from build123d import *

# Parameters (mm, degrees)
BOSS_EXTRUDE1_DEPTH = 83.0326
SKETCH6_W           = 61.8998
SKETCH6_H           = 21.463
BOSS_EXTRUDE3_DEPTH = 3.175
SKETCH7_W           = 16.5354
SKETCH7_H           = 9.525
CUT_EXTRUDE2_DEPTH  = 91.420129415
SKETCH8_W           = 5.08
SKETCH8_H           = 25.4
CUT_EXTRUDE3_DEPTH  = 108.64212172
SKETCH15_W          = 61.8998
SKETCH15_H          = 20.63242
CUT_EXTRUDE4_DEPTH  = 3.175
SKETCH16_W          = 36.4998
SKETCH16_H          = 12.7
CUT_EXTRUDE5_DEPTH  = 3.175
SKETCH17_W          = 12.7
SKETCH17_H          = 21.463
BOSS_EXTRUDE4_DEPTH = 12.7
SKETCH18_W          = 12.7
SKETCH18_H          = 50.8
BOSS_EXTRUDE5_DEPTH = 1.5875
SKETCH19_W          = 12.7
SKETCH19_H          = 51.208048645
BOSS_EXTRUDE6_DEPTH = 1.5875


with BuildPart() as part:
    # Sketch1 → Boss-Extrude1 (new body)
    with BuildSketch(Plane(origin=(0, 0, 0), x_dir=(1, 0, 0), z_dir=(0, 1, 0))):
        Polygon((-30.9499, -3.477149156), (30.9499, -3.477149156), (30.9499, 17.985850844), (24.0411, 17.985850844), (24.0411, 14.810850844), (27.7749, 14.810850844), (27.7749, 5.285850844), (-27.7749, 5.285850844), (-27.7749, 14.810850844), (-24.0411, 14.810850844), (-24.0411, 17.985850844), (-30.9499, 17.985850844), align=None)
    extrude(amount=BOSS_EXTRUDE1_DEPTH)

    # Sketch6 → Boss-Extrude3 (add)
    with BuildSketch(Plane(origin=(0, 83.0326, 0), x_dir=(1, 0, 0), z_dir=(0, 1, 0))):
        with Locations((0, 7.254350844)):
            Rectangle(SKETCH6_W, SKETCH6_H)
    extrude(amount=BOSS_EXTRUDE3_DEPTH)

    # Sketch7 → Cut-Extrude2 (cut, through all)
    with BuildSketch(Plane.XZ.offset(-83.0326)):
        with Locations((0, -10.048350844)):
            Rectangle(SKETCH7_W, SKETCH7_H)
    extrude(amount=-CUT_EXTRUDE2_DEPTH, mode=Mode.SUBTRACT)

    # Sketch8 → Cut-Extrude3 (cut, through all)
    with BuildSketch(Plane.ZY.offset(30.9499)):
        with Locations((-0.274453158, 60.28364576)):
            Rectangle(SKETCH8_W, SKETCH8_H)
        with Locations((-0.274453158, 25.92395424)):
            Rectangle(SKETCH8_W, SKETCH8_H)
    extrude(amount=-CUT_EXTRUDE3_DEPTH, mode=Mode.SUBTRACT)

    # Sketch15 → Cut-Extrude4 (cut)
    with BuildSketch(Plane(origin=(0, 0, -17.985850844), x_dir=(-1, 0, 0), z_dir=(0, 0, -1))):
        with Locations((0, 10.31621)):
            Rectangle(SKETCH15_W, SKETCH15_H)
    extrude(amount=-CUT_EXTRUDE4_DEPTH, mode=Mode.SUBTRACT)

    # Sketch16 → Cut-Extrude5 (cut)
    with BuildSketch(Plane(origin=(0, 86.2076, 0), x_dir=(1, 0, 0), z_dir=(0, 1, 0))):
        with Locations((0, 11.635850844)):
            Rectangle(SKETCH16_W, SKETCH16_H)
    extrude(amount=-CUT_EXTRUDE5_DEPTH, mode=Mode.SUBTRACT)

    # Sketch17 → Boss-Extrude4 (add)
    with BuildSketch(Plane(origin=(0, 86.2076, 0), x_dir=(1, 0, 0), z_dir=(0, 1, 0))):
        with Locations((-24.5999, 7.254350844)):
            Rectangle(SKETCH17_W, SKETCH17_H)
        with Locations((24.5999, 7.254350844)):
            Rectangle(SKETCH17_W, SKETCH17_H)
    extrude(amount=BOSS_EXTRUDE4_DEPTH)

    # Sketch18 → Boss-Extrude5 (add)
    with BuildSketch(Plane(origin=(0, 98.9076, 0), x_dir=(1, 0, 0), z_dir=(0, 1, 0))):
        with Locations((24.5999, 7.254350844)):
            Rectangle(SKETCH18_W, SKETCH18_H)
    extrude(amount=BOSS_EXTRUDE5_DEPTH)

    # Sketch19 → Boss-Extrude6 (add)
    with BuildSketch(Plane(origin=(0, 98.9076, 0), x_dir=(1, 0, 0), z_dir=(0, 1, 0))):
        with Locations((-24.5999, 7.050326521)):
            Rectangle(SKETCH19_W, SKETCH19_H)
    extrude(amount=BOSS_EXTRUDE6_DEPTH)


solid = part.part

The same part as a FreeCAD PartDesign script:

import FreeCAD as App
import Part
import Sketcher
Q = App.Units.Quantity


def add_polygon(sketch, points):
    """Adds a closed chain of lines whose ends are joined by coincident constraints."""
    first, n = sketch.GeometryCount, len(points)
    for a, b in zip(points, points[1:] + points[:1]):
        sketch.addGeometry(Part.LineSegment(App.Vector(*a, 0), App.Vector(*b, 0)), False)
    for i in range(n):
        sketch.addConstraint(Sketcher.Constraint("Coincident", first + i, 2, first + (i + 1) % n, 1))

doc = App.newDocument("Part")
params = doc.addObject("Spreadsheet::Sheet", "Params")
for row, (alias, value) in enumerate([
    ("sketch1_width", "2.437 in"),
    ("sketch1_width2", "0.272 in"),
    ("sketch1_width3", "0.147 in"),
    ("sketch1_height", "0.845 in"),
    ("sketch1_height2", "0.125 in"),
    ("pad1_length", "3.269 in"),
    ("sketch2_width", "2.437 in"),
    ("sketch2_height", "0.845 in"),
    ("pad2_length", "0.125 in"),
    ("sketch3_width", "0.651 in"),
    ("sketch3_height", "0.375 in"),
    ("sketch4_width", "1 in"),
    ("sketch4_height", "0.2 in"),
    ("sketch5_width", "2.437 in"),
    ("pocket3_length", "0.125 in"),
    ("sketch6_height", "0.5 in"),
    ("sketch6_width", "1.437 in"),
    ("pocket4_length", "0.125 in"),
    ("sketch7_width", "0.5 in"),
    ("sketch7_height", "0.845 in"),
    ("pad3_length", "0.5 in"),
    ("sketch8_height", "2 in"),
    ("sketch8_width", "0.5 in"),
    ("pad4_length", "0.0625 in"),
    ("sketch9_width", "0.5 in"),
    ("pad5_length", "0.0625 in"),
], start=1):
    params.set(f"A{row}", alias)
    params.set(f"B{row}", "=" + value)
    params.setAlias(f"B{row}", alias)

body = doc.addObject("PartDesign::Body", "Body")

sketch1 = doc.addObject("Sketcher::SketchObject", "Sketch")
body.addObject(sketch1)
sketch1.AttachmentSupport = (doc.XZ_Plane, [""])
sketch1.MapMode = "FlatFace"
add_polygon(sketch1, [(-30.9, 3.5), (30.9, 3.5), (30.9, -18), (24, -18), (24, -14.8), (27.8, -14.8), (27.8, -5.3), (-27.8, -5.3), (-27.8, -14.8), (-24, -14.8), (-24, -18), (-30.9, -18)])
sketch1.addConstraint([
    Sketcher.Constraint("Horizontal", 0),
    Sketcher.Constraint("Vertical", 1),
    Sketcher.Constraint("Horizontal", 2),
    Sketcher.Constraint("Vertical", 3),
    Sketcher.Constraint("Horizontal", 4),
    Sketcher.Constraint("Vertical", 5),
    Sketcher.Constraint("Horizontal", 6),
    Sketcher.Constraint("Vertical", 7),
    Sketcher.Constraint("Horizontal", 8),
    Sketcher.Constraint("Vertical", 9),
    Sketcher.Constraint("Horizontal", 10),
    Sketcher.Constraint("Vertical", 11),
    Sketcher.Constraint("Symmetric", 4, 2, 7, 2, -2),
    Sketcher.Constraint("Symmetric", 2, 2, 9, 2, -2),
    Sketcher.Constraint("Equal", 2, 10),
    Sketcher.Constraint("DistanceY", 1, 2, 5, 2, Q("0.5 in")),
    Sketcher.Constraint("DistanceX", 0, 1, 0, 2, Q("2.437 in")),
    Sketcher.Constraint("DistanceX", 2, 2, 2, 1, Q("0.272 in")),
    Sketcher.Constraint("DistanceX", 4, 1, 4, 2, Q("0.147 in")),
    Sketcher.Constraint("DistanceY", 1, 2, 1, 1, Q("0.845 in")),
    Sketcher.Constraint("DistanceY", 3, 1, 3, 2, Q("0.125 in")),
    Sketcher.Constraint("DistanceY", -1, 1, 0, 2, Q("3.477149 mm")),
])
sketch1.setExpression("Constraints[28]", "Params.sketch1_width")
sketch1.setExpression("Constraints[29]", "Params.sketch1_width2")
sketch1.setExpression("Constraints[30]", "Params.sketch1_width3")
sketch1.setExpression("Constraints[31]", "Params.sketch1_height")
sketch1.setExpression("Constraints[32]", "Params.sketch1_height2")
pad1 = doc.addObject("PartDesign::Pad", "Pad")
body.addObject(pad1)
pad1.Profile = sketch1
pad1.setExpression("Length", "Params.pad1_length")
pad1.Reversed = True

sketch2 = doc.addObject("Sketcher::SketchObject", "Sketch001")
body.addObject(sketch2)
sketch2.AttachmentSupport = (doc.XZ_Plane, [""])
sketch2.MapMode = "FlatFace"
sketch2.AttachmentOffset = App.Placement(App.Vector(0, 0, -3.269 * 25.4), App.Rotation())
add_polygon(sketch2, [(-31, -18), (-31, 3), (31, 3), (31, -18)])
sketch2.addConstraint([
    Sketcher.Constraint("Vertical", 0),
    Sketcher.Constraint("Horizontal", 1),
    Sketcher.Constraint("Vertical", 2),
    Sketcher.Constraint("Horizontal", 3),
    Sketcher.Constraint("DistanceX", 1, 1, 1, 2, Q("2.437 in")),
    Sketcher.Constraint("DistanceY", 0, 1, 0, 2, Q("0.845 in")),
    Sketcher.Constraint("DistanceX", 0, 2, -1, 1, Q("1.2185 in")),
    Sketcher.Constraint("DistanceY", -1, 1, 0, 2, Q("3.477149 mm")),
])
sketch2.setExpression("Constraints[8]", "Params.sketch2_width")
sketch2.setExpression("Constraints[9]", "Params.sketch2_height")
pad2 = doc.addObject("PartDesign::Pad", "Pad001")
body.addObject(pad2)
pad2.Profile = sketch2
pad2.setExpression("Length", "Params.pad2_length")
pad2.Reversed = True

sketch3 = doc.addObject("Sketcher::SketchObject", "Sketch002")
body.addObject(sketch3)
sketch3.AttachmentSupport = (doc.XZ_Plane, [""])
sketch3.MapMode = "FlatFace"
sketch3.AttachmentOffset = App.Placement(App.Vector(0, 0, -3.269 * 25.4), App.Rotation())
add_polygon(sketch3, [(-8, -5), (-8, -15), (8, -15), (8, -5)])
sketch3.addConstraint([
    Sketcher.Constraint("Vertical", 0),
    Sketcher.Constraint("Horizontal", 1),
    Sketcher.Constraint("Vertical", 2),
    Sketcher.Constraint("Horizontal", 3),
    Sketcher.Constraint("DistanceX", 1, 1, 1, 2, Q("0.651 in")),
    Sketcher.Constraint("DistanceY", 0, 2, 0, 1, Q("0.375 in")),
    Sketcher.Constraint("DistanceX", 0, 2, -1, 1, Q("0.3255 in")),
    Sketcher.Constraint("DistanceY", 0, 2, -1, 1, Q("14.810851 mm")),
])
sketch3.setExpression("Constraints[8]", "Params.sketch3_width")
sketch3.setExpression("Constraints[9]", "Params.sketch3_height")
pocket1 = doc.addObject("PartDesign::Pocket", "Pocket")
body.addObject(pocket1)
pocket1.Profile = sketch3
pocket1.Type = "ThroughAll"

sketch4 = doc.addObject("Sketcher::SketchObject", "Sketch003")
body.addObject(sketch4)
sketch4.AttachmentSupport = (doc.YZ_Plane, [""])
sketch4.MapMode = "FlatFace"
sketch4.AttachmentOffset = App.Placement(App.Vector(0, 0, -1.2185 * 25.4), App.Rotation())
add_polygon(sketch4, [(73, -3), (48, -3), (48, 2), (73, 2)])
add_polygon(sketch4, [(39, -3), (13, -3), (13, 2), (39, 2)])
sketch4.addConstraint([
    Sketcher.Constraint("Horizontal", 0),
    Sketcher.Constraint("Vertical", 1),
    Sketcher.Constraint("Horizontal", 2),
    Sketcher.Constraint("Vertical", 3),
    Sketcher.Constraint("Horizontal", 4),
    Sketcher.Constraint("Vertical", 5),
    Sketcher.Constraint("Horizontal", 6),
    Sketcher.Constraint("Vertical", 7),
    Sketcher.Constraint("Horizontal", 3, 2, 4, 2),
    Sketcher.Constraint("Horizontal", 2, 2, 5, 2),
    Sketcher.Constraint("Equal", 2, 4),
    Sketcher.Constraint("DistanceX", 0, 2, 0, 1, Q("1 in")),
    Sketcher.Constraint("DistanceY", 1, 1, 1, 2, Q("0.2 in")),
    Sketcher.Constraint("DistanceX", 4, 2, 0, 2, Q("34.359692 mm")),
    Sketcher.Constraint("DistanceX", -1, 1, 0, 2, Q("47.583646 mm")),
    Sketcher.Constraint("DistanceY", 0, 2, -1, 1, Q("2.814453 mm")),
])
sketch4.setExpression("Constraints[19]", "Params.sketch4_width")
sketch4.setExpression("Constraints[20]", "Params.sketch4_height")
pocket2 = doc.addObject("PartDesign::Pocket", "Pocket001")
body.addObject(pocket2)
pocket2.Profile = sketch4
pocket2.Type = "ThroughAll"
pocket2.Reversed = True

sketch5 = doc.addObject("Sketcher::SketchObject", "Sketch004")
body.addObject(sketch5)
sketch5.AttachmentSupport = (doc.XY_Plane, [""])
sketch5.MapMode = "FlatFace"
sketch5.AttachmentOffset = App.Placement(App.Vector(0, 0, -17.985851), App.Rotation())
add_polygon(sketch5, [(31, 21), (31, 0), (-31, 0), (-31, 21)])
sketch5.addConstraint([
    Sketcher.Constraint("Vertical", 0),
    Sketcher.Constraint("Horizontal", 1),
    Sketcher.Constraint("Vertical", 2),
    Sketcher.Constraint("Horizontal", 3),
    Sketcher.Constraint("Symmetric", 0, 2, 1, 2, -1, 1),
    Sketcher.Constraint("DistanceX", 1, 2, 1, 1, Q("2.437 in")),
    Sketcher.Constraint("DistanceY", 0, 2, 0, 1, Q("0.8123 in")),
])
sketch5.setExpression("Constraints[9]", "Params.sketch5_width")
pocket3 = doc.addObject("PartDesign::Pocket", "Pocket002")
body.addObject(pocket3)
pocket3.Profile = sketch5
pocket3.setExpression("Length", "Params.pocket3_length")
pocket3.Reversed = True

sketch6 = doc.addObject("Sketcher::SketchObject", "Sketch005")
body.addObject(sketch6)
sketch6.AttachmentSupport = (doc.XZ_Plane, [""])
sketch6.MapMode = "FlatFace"
sketch6.AttachmentOffset = App.Placement(App.Vector(0, 0, -3.394 * 25.4), App.Rotation())
add_polygon(sketch6, [(-18, -18), (-18, -5), (18, -5), (18, -18)])
sketch6.addConstraint([
    Sketcher.Constraint("Vertical", 0),
    Sketcher.Constraint("Horizontal", 1),
    Sketcher.Constraint("Vertical", 2),
    Sketcher.Constraint("Horizontal", 3),
    Sketcher.Constraint("DistanceY", 0, 1, 0, 2, Q("0.5 in")),
    Sketcher.Constraint("DistanceX", 1, 1, 1, 2, Q("1.437 in")),
    Sketcher.Constraint("DistanceX", 0, 2, -1, 1, Q("0.7185 in")),
    Sketcher.Constraint("DistanceY", 0, 2, -1, 1, Q("5.285851 mm")),
])
sketch6.setExpression("Constraints[8]", "Params.sketch6_height")
sketch6.setExpression("Constraints[9]", "Params.sketch6_width")
pocket4 = doc.addObject("PartDesign::Pocket", "Pocket003")
body.addObject(pocket4)
pocket4.Profile = sketch6
pocket4.setExpression("Length", "Params.pocket4_length")
pocket4.Reversed = True

sketch7 = doc.addObject("Sketcher::SketchObject", "Sketch006")
body.addObject(sketch7)
sketch7.AttachmentSupport = (doc.XZ_Plane, [""])
sketch7.MapMode = "FlatFace"
sketch7.AttachmentOffset = App.Placement(App.Vector(0, 0, -3.394 * 25.4), App.Rotation())
add_polygon(sketch7, [(-31, -18), (-31, 3), (-18, 3), (-18, -18)])
add_polygon(sketch7, [(18, -18), (18, 3), (31, 3), (31, -18)])
sketch7.addConstraint([
    Sketcher.Constraint("Vertical", 0),
    Sketcher.Constraint("Horizontal", 1),
    Sketcher.Constraint("Vertical", 2),
    Sketcher.Constraint("Horizontal", 3),
    Sketcher.Constraint("Vertical", 4),
    Sketcher.Constraint("Horizontal", 5),
    Sketcher.Constraint("Vertical", 6),
    Sketcher.Constraint("Horizontal", 7),
    Sketcher.Constraint("Symmetric", 1, 2, 4, 2, -2),
    Sketcher.Constraint("Symmetric", 3, 2, 6, 2, -2),
    Sketcher.Constraint("DistanceX", 1, 1, 1, 2, Q("0.5 in")),
    Sketcher.Constraint("DistanceY", 0, 1, 0, 2, Q("0.845 in")),
    Sketcher.Constraint("DistanceX", 1, 2, 4, 2, Q("1.437 in")),
    Sketcher.Constraint("DistanceY", -1, 1, 0, 2, Q("3.477149 mm")),
])
sketch7.setExpression("Constraints[18]", "Params.sketch7_width")
sketch7.setExpression("Constraints[19]", "Params.sketch7_height")
pad3 = doc.addObject("PartDesign::Pad", "Pad002")
body.addObject(pad3)
pad3.Profile = sketch7
pad3.setExpression("Length", "Params.pad3_length")
pad3.Reversed = True

sketch8 = doc.addObject("Sketcher::SketchObject", "Sketch007")
body.addObject(sketch8)
sketch8.AttachmentSupport = (doc.XZ_Plane, [""])
sketch8.MapMode = "FlatFace"
sketch8.AttachmentOffset = App.Placement(App.Vector(0, 0, -3.894 * 25.4), App.Rotation())
add_polygon(sketch8, [(18, -33), (18, 18), (31, 18), (31, -33)])
sketch8.addConstraint([
    Sketcher.Constraint("Vertical", 0),
    Sketcher.Constraint("Horizontal", 1),
    Sketcher.Constraint("Vertical", 2),
    Sketcher.Constraint("Horizontal", 3),
    Sketcher.Constraint("DistanceY", 0, 1, 0, 2, Q("2 in")),
    Sketcher.Constraint("DistanceX", 1, 1, 1, 2, Q("0.5 in")),
    Sketcher.Constraint("DistanceX", -1, 1, 0, 2, Q("0.7185 in")),
    Sketcher.Constraint("DistanceY", -1, 1, 0, 2, Q("18.145649 mm")),
])
sketch8.setExpression("Constraints[8]", "Params.sketch8_height")
sketch8.setExpression("Constraints[9]", "Params.sketch8_width")
pad4 = doc.addObject("PartDesign::Pad", "Pad003")
body.addObject(pad4)
pad4.Profile = sketch8
pad4.setExpression("Length", "Params.pad4_length")
pad4.Reversed = True

sketch9 = doc.addObject("Sketcher::SketchObject", "Sketch008")
body.addObject(sketch9)
sketch9.AttachmentSupport = (doc.XZ_Plane, [""])
sketch9.MapMode = "FlatFace"
sketch9.AttachmentOffset = App.Placement(App.Vector(0, 0, -3.894 * 25.4), App.Rotation())
add_polygon(sketch9, [(-31, -33), (-31, 19), (-18, 19), (-18, -33)])
sketch9.addConstraint([
    Sketcher.Constraint("Vertical", 0),
    Sketcher.Constraint("Horizontal", 1),
    Sketcher.Constraint("Vertical", 2),
    Sketcher.Constraint("Horizontal", 3),
    Sketcher.Constraint("DistanceX", 1, 1, 1, 2, Q("0.5 in")),
    Sketcher.Constraint("DistanceX", 0, 2, -1, 1, Q("1.2185 in")),
    Sketcher.Constraint("DistanceY", 0, 1, 0, 2, Q("51.208049 mm")),
    Sketcher.Constraint("DistanceY", 2, 2, -1, 1, Q("32.654351 mm")),
])
sketch9.setExpression("Constraints[8]", "Params.sketch9_width")
pad5 = doc.addObject("PartDesign::Pad", "Pad004")
body.addObject(pad5)
pad5.Profile = sketch9
pad5.setExpression("Length", "Params.pad5_length")
pad5.Reversed = True

doc.recompute()
